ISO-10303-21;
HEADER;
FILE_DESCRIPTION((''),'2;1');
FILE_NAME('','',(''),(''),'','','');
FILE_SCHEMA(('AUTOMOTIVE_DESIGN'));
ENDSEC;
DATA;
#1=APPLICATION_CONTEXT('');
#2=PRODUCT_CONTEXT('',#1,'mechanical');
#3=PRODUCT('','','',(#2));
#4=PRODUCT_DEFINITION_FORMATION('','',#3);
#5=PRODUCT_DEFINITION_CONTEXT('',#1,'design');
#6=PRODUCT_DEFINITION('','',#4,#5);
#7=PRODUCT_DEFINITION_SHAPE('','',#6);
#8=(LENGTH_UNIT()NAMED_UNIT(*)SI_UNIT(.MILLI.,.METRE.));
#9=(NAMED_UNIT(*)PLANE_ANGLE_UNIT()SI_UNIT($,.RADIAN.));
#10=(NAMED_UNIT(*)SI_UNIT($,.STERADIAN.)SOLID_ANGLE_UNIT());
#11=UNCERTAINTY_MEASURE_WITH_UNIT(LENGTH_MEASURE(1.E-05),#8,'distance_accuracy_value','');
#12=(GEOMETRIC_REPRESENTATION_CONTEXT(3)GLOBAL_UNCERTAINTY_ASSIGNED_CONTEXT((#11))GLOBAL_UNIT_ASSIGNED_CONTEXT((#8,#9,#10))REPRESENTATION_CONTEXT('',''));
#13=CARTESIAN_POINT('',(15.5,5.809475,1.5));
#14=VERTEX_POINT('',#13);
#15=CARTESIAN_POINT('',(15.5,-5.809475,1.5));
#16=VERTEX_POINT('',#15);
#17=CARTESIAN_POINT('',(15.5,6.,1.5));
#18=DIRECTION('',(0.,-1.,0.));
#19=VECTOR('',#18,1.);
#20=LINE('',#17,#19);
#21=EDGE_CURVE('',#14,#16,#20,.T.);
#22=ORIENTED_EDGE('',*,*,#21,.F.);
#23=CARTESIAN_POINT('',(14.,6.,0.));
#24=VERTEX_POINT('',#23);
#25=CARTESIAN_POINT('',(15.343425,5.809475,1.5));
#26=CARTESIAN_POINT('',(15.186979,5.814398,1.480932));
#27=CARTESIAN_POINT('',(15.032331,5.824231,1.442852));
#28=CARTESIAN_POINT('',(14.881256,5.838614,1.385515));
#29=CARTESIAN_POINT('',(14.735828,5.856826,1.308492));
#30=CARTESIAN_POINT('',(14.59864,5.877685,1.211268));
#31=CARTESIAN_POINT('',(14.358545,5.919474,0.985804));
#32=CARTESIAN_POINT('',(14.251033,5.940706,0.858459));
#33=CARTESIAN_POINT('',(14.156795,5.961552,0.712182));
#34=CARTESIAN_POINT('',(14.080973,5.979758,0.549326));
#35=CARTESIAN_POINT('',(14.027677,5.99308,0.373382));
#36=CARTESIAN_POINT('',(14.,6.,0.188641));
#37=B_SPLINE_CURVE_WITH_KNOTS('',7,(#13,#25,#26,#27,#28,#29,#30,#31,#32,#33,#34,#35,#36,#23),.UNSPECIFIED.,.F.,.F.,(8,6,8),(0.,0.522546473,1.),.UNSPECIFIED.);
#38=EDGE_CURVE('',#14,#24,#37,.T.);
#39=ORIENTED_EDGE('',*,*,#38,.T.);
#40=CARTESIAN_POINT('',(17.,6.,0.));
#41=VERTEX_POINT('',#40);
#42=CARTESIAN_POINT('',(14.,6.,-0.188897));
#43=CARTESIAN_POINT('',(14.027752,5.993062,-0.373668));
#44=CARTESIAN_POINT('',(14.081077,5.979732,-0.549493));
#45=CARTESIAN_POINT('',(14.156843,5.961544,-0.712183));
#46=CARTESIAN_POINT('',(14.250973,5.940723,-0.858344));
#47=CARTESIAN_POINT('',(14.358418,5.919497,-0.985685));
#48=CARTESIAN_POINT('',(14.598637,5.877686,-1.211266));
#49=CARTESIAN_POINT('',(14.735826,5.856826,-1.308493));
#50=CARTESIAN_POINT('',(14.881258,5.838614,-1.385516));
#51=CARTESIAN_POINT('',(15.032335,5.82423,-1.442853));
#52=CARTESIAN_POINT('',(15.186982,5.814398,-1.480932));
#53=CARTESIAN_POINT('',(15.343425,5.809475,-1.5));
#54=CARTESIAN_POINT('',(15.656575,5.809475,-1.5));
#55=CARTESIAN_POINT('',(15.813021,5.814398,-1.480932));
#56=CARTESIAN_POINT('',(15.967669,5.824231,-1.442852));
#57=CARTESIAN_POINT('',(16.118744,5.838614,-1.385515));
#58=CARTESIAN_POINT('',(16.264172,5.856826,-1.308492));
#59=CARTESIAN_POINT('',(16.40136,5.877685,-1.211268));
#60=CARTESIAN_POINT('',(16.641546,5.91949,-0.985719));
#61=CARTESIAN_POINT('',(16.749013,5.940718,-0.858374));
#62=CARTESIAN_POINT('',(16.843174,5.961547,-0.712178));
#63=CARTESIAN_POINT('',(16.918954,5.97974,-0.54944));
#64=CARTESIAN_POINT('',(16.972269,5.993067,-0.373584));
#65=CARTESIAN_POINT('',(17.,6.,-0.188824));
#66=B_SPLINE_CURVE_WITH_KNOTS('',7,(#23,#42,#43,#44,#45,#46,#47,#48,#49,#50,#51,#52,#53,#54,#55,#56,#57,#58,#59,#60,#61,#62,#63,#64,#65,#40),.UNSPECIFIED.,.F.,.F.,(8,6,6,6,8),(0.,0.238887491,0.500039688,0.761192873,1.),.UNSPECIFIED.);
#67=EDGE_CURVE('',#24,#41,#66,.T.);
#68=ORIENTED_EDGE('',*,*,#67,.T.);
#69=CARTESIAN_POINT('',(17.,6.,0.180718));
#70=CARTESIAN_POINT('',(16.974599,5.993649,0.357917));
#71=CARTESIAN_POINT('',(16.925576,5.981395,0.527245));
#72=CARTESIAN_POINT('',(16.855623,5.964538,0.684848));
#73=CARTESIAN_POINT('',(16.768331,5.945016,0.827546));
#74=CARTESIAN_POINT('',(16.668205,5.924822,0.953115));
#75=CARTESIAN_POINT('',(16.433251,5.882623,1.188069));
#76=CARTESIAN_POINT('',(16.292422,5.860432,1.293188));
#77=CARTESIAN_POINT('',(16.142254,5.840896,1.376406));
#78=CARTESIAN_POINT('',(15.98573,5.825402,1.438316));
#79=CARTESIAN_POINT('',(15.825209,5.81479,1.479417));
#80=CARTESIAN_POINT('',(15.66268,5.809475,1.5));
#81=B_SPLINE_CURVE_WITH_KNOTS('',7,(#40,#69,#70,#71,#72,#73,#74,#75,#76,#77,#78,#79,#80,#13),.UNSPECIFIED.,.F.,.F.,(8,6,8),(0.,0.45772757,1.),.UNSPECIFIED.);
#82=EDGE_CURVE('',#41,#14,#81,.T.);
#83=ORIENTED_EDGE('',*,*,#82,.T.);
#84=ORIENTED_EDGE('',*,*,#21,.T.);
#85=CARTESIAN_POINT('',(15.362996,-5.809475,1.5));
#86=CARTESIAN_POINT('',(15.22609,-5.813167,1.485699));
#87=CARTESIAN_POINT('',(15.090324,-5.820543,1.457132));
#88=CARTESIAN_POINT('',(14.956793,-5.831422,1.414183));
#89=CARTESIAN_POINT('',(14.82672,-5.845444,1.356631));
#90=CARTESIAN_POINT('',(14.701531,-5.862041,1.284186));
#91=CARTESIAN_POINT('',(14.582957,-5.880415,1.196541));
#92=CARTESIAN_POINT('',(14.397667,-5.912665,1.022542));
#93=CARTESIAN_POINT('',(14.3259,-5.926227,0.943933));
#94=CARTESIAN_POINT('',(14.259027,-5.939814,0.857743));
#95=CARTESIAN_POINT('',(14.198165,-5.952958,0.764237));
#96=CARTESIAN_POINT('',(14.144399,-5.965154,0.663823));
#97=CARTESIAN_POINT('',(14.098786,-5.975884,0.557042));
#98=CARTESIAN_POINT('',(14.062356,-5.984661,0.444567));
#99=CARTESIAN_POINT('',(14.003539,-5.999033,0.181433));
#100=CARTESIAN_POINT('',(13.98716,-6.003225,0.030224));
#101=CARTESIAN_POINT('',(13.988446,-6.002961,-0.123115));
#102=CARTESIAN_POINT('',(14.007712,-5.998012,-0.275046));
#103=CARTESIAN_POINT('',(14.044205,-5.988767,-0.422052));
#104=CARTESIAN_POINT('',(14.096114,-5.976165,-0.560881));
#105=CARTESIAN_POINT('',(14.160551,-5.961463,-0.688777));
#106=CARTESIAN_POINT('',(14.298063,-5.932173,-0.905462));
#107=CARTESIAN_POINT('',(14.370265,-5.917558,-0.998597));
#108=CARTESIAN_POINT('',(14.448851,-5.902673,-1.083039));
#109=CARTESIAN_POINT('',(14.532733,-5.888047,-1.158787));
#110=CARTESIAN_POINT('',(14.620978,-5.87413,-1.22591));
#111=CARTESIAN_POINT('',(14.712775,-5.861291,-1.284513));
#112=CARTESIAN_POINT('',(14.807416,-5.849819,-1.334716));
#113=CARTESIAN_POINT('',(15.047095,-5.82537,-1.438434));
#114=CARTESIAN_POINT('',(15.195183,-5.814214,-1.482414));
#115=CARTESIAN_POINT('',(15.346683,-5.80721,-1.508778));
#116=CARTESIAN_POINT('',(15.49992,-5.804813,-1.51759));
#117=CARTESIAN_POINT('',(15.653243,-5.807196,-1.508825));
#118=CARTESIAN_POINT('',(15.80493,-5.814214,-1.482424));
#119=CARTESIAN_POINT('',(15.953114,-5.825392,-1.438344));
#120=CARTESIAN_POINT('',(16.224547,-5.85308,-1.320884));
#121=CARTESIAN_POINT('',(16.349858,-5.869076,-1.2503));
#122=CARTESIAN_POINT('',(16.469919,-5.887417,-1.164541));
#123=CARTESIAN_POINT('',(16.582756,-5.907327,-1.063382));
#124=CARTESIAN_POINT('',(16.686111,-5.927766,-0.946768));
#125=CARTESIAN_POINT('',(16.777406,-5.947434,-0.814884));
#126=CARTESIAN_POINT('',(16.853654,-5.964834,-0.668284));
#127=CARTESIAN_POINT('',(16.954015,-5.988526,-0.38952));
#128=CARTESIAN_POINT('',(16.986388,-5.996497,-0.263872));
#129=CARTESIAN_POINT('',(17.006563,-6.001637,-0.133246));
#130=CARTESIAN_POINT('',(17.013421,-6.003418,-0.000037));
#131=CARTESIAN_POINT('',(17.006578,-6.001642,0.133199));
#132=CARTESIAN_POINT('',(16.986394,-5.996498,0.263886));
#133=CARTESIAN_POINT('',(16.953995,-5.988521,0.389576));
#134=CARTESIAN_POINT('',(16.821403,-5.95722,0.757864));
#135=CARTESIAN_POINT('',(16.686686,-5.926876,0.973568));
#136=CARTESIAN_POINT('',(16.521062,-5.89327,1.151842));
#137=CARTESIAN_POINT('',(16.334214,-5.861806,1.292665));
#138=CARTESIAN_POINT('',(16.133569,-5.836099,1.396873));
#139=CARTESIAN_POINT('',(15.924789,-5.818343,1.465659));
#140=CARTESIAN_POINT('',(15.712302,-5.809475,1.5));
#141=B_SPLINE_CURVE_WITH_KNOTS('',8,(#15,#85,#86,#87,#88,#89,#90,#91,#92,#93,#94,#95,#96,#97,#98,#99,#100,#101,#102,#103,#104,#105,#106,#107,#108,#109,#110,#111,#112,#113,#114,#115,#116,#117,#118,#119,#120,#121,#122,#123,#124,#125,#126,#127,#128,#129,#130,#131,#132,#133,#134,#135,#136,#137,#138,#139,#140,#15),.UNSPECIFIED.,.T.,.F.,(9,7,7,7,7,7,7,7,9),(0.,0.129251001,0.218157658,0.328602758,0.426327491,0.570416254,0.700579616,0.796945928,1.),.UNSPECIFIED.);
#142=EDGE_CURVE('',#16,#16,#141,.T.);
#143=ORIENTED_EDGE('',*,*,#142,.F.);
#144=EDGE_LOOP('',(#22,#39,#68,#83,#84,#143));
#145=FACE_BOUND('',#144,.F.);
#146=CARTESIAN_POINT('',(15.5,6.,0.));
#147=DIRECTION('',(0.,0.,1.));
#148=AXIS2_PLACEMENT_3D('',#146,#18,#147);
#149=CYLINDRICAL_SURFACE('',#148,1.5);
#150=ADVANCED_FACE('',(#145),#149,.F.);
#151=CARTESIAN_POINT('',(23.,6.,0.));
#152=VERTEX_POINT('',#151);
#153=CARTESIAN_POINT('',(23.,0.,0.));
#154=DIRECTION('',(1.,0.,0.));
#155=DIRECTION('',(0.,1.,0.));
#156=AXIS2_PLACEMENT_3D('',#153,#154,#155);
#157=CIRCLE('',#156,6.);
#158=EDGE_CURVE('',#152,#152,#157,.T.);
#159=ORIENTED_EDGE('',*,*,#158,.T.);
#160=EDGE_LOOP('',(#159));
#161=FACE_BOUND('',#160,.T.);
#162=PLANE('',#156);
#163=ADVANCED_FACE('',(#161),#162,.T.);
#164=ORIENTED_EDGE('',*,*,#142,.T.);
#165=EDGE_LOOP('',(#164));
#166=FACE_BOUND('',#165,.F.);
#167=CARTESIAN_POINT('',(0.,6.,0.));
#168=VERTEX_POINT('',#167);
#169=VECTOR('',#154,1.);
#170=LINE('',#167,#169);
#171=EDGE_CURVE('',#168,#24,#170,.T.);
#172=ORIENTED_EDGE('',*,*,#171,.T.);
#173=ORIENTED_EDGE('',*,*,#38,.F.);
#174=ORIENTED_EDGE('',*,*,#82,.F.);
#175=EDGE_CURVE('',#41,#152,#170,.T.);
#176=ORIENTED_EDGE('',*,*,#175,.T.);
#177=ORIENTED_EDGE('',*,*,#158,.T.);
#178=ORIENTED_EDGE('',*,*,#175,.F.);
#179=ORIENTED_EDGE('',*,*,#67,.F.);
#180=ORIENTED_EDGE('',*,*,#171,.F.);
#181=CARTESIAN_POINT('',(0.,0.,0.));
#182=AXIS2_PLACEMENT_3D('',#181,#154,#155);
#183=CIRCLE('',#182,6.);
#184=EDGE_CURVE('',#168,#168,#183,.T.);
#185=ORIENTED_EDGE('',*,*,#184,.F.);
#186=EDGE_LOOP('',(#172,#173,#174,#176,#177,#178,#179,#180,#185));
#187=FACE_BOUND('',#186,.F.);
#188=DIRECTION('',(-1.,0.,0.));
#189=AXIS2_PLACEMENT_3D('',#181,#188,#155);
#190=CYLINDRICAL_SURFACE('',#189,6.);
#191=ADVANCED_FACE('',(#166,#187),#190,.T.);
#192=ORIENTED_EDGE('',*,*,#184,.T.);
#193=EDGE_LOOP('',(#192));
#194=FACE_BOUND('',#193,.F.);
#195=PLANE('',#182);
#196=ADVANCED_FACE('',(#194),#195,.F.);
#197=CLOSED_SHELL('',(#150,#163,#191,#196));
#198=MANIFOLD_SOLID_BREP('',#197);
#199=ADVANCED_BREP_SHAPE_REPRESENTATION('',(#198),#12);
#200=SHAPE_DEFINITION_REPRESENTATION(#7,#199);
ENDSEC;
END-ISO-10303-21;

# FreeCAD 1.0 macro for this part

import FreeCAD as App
import Part
import Sketcher
from FreeCAD import Vector
Q = App.Units.Quantity

doc = App.newDocument("Part")
body = doc.addObject("PartDesign::Body", "Body")

# Sketch on YZ plane
sketch1 = doc.addObject("Sketcher::SketchObject", "Sketch")
body.addObject(sketch1)
sketch1.AttachmentSupport = (doc.YZ_Plane, [""])
sketch1.MapMode = "FlatFace"
sketch1.addGeometry(Part.Circle(Vector(0, 0, 0), Vector(0, 0, 1), 6), False)
sketch1.addConstraint(Sketcher.Constraint("Coincident", 0, 3, -1, 1))
sketch1.addConstraint(Sketcher.Constraint("Diameter", 0, Q("12 mm")))
pad1 = doc.addObject("PartDesign::Pad", "Pad")
body.addObject(pad1)
pad1.Profile = sketch1
pad1.Length = 23

# Sketch on XZ plane
sketch2 = doc.addObject("Sketcher::SketchObject", "Sketch001")
body.addObject(sketch2)
sketch2.AttachmentSupport = (doc.XZ_Plane, [""])
sketch2.MapMode = "FlatFace"
sketch2.AttachmentOffset = App.Placement(Vector(0, 0, -6), App.Rotation())
sketch2.addGeometry(Part.Circle(Vector(15.5, 0, 0), Vector(0, 0, 1), 1.5), False)
sketch2.addConstraint(Sketcher.Constraint("PointOnObject", 0, 3, -1))
sketch2.addConstraint(Sketcher.Constraint("Diameter", 0, Q("3 mm")))
sketch2.addConstraint(Sketcher.Constraint("DistanceX", -1, 1, 0, 3, Q("15.5 mm")))
doc.recompute()
hole = doc.addObject("PartDesign::Hole", "Hole")
body.addObject(hole)
hole.Profile = sketch2
hole.ThreadType = "None"
hole.Diameter = 3
hole.DepthType = "ThroughAll"
hole.Reversed = True

doc.recompute()
